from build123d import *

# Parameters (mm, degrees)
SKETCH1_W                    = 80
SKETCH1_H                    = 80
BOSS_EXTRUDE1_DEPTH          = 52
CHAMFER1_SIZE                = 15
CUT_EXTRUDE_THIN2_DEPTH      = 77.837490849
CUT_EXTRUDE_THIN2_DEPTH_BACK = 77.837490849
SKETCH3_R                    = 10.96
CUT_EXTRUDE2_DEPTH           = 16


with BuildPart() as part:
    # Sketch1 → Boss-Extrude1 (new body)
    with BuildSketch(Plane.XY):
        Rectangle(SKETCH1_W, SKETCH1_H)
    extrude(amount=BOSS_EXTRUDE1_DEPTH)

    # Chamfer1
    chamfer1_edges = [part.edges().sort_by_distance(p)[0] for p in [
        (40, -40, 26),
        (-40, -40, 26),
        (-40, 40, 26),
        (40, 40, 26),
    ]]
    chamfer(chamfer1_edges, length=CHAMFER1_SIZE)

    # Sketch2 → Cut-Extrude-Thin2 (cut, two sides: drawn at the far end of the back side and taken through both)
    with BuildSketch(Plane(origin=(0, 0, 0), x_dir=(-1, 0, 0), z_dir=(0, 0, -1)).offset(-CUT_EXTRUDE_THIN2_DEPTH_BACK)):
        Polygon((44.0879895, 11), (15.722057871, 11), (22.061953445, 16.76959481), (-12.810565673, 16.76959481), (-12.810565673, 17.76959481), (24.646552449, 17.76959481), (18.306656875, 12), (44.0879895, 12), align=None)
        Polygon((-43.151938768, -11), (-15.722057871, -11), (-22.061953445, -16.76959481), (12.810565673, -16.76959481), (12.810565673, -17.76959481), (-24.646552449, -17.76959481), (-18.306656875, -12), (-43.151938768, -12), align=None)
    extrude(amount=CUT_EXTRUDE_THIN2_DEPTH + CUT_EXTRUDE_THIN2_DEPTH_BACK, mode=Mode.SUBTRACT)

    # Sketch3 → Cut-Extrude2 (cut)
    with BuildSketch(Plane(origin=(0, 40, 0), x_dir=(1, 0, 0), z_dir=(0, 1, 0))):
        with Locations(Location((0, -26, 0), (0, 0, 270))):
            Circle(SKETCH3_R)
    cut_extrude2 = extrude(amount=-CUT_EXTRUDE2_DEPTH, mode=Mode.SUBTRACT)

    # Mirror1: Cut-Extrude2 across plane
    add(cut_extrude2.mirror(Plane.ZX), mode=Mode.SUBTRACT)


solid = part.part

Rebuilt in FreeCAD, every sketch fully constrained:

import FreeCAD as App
import Part
import Sketcher


def edges_at(feature, points):
    """Names of the edges that pass closest to the given points."""
    edges = feature.Shape.Edges
    near = lambda p: min(range(len(edges)), key=lambda i: edges[i].distToShape(Part.Vertex(*p))[0])
    return sorted({f"Edge{near(p) + 1}" for p in points})

doc = App.newDocument("Part")
body = doc.addObject("PartDesign::Body", "Body")

sketch1 = body.newObject("Sketcher::SketchObject", "Sketch")
sketch1.AttachmentSupport = (doc.getObject("XY_Plane"), [""])
sketch1.MapMode = "FlatFace"
sketch1.addGeometry([
    Part.LineSegment(App.Vector(-40, 40, 0), App.Vector(-40, -40, 0)),
    Part.LineSegment(App.Vector(-40, -40, 0), App.Vector(40, -40, 0)),
    Part.LineSegment(App.Vector(40, -40, 0), App.Vector(40, 40, 0)),
    Part.LineSegment(App.Vector(40, 40, 0), App.Vector(-40, 40, 0)),
], False)
sketch1.addConstraint([
    Sketcher.Constraint("Coincident", 0, 2, 1, 1),
    Sketcher.Constraint("Coincident", 1, 2, 2, 1),
    Sketcher.Constraint("Coincident", 2, 2, 3, 1),
    Sketcher.Constraint("Coincident", 3, 2, 0, 1),
    Sketcher.Constraint("Vertical", 0),
    Sketcher.Constraint("Horizontal", 1),
    Sketcher.Constraint("Vertical", 2),
    Sketcher.Constraint("Horizontal", 3),
    Sketcher.Constraint("Symmetric", 0, 2, 2, 2, -1, 1),
    Sketcher.Constraint("Equal", 3, 0),
    Sketcher.Constraint("DistanceX", 1, 1, 1, 2, 80.0),
])
pad1 = body.newObject("PartDesign::Pad", "Pad")
pad1.Profile = sketch1
pad1.Length = 52
doc.recompute()

chamfer = body.newObject("PartDesign::Chamfer", "Chamfer")
chamfer.Base = (pad1, edges_at(pad1, [
    (40, -40, 26),
    (-40, -40, 26),
    (-40, 40, 26),
    (40, 40, 26),
]))
chamfer.Size = 15

sketch2 = body.newObject("Sketcher::SketchObject", "Sketch001")
sketch2.AttachmentSupport = (doc.getObject("XY_Plane"), [""])
sketch2.MapMode = "FlatFace"
sketch2.addGeometry([
    Part.LineSegment(App.Vector(-15.7, 11, 0), App.Vector(-44.1, 11, 0)),
    Part.LineSegment(App.Vector(-44.1, 11, 0), App.Vector(-44.1, 12, 0)),
    Part.LineSegment(App.Vector(-44.1, 12, 0), App.Vector(-18.3, 12, 0)),
    Part.LineSegment(App.Vector(-18.3, 12, 0), App.Vector(-24.6, 17.8, 0)),
    Part.LineSegment(App.Vector(-24.6, 17.8, 0), App.Vector(12.8, 17.8, 0)),
    Part.LineSegment(App.Vector(12.8, 17.8, 0), App.Vector(12.8, 16.8, 0)),
    Part.LineSegment(App.Vector(12.8, 16.8, 0), App.Vector(-22.1, 16.8, 0)),
    Part.LineSegment(App.Vector(-22.1, 16.8, 0), App.Vector(-15.7, 11, 0)),
    Part.LineSegment(App.Vector(15.7, -11, 0), App.Vector(43.2, -11, 0)),
    Part.LineSegment(App.Vector(43.2, -11, 0), App.Vector(43.2, -12, 0)),
    Part.LineSegment(App.Vector(43.2, -12, 0), App.Vector(18.3, -12, 0)),
    Part.LineSegment(App.Vector(18.3, -12, 0), App.Vector(24.6, -17.8, 0)),
    Part.LineSegment(App.Vector(24.6, -17.8, 0), App.Vector(-12.8, -17.8, 0)),
    Part.LineSegment(App.Vector(-12.8, -17.8, 0), App.Vector(-12.8, -16.8, 0)),
    Part.LineSegment(App.Vector(-12.8, -16.8, 0), App.Vector(22.1, -16.8, 0)),
    Part.LineSegment(App.Vector(22.1, -16.8, 0), App.Vector(15.7, -11, 0)),
], False)
sketch2.addConstraint([
    Sketcher.Constraint("Coincident", 0, 2, 1, 1),
    Sketcher.Constraint("Coincident", 1, 2, 2, 1),
    Sketcher.Constraint("Coincident", 2, 2, 3, 1),
    Sketcher.Constraint("Coincident", 3, 2, 4, 1),
    Sketcher.Constraint("Coincident", 4, 2, 5, 1),
    Sketcher.Constraint("Coincident", 5, 2, 6, 1),
    Sketcher.Constraint("Coincident", 6, 2, 7, 1),
    Sketcher.Constraint("Coincident", 7, 2, 0, 1),
    Sketcher.Constraint("Coincident", 8, 2, 9, 1),
    Sketcher.Constraint("Coincident", 9, 2, 10, 1),
    Sketcher.Constraint("Coincident", 10, 2, 11, 1),
    Sketcher.Constraint("Coincident", 11, 2, 12, 1),
    Sketcher.Constraint("Coincident", 12, 2, 13, 1),
    Sketcher.Constraint("Coincident", 13, 2, 14, 1),
    Sketcher.Constraint("Coincident", 14, 2, 15, 1),
    Sketcher.Constraint("Coincident", 15, 2, 8, 1),
    Sketcher.Constraint("Horizontal", 0),
    Sketcher.Constraint("Vertical", 1),
    Sketcher.Constraint("Horizontal", 2),
    Sketcher.Constraint("Horizontal", 4),
    Sketcher.Constraint("Vertical", 5),
    Sketcher.Constraint("Horizontal", 6),
    Sketcher.Constraint("Horizontal", 8),
    Sketcher.Constraint("Vertical", 9),
    Sketcher.Constraint("Horizontal", 10),
    Sketcher.Constraint("Horizontal", 12),
    Sketcher.Constraint("Vertical", 13),
    Sketcher.Constraint("Horizontal", 14),
    Sketcher.Constraint("Symmetric", 2, 2, 10, 2, -1, 1),
    Sketcher.Constraint("Symmetric", 3, 2, 11, 2, -1, 1),
    Sketcher.Constraint("Symmetric", 5, 2, 13, 2, -1, 1),
    Sketcher.Constraint("Symmetric", 7, 2, 15, 2, -1, 1),
    Sketcher.Constraint("Parallel", 3, 7),
    Sketcher.Constraint("Parallel", 11, 15),
    Sketcher.Constraint("Equal", 1, 5),
    Sketcher.Constraint("DistanceY", 1, 1, 1, 2, 1.0),
    Sketcher.Constraint("DistanceY", -1, 1, 0, 2, 11.0),
    Sketcher.Constraint("DistanceX", 0, 2, 0, 1, 28.365932),
    Sketcher.Constraint("DistanceX", 4, 1, 4, 2, 37.457118),
    Sketcher.Constraint("DistanceX", 6, 2, 6, 1, 34.872519),
    Sketcher.Constraint("DistanceX", 8, 1, 8, 2, 27.429881),
    Sketcher.Constraint("DistanceX", 0, 2, -1, 1, 44.087989),
    Sketcher.Constraint("DistanceX", 5, 2, 10, 2, 5.496091),
    Sketcher.Constraint("DistanceY", 11, 2, 5, 2, 34.53919),
])
pocket1 = body.newObject("PartDesign::Pocket", "Pocket")
pocket1.Profile = sketch2
pocket1.Type = "ThroughAll"
pocket1.Midplane = True

sketch3 = body.newObject("Sketcher::SketchObject", "Sketch002")
sketch3.AttachmentSupport = (doc.getObject("XZ_Plane"), [""])
sketch3.MapMode = "FlatFace"
sketch3.AttachmentOffset = App.Placement(App.Vector(0, 0, -40), App.Rotation())
sketch3.addGeometry(Part.Circle(App.Vector(0, 26, 0), App.Vector(0, 0, 1), 11), False)
sketch3.addConstraint([
    Sketcher.Constraint("PointOnObject", 0, 3, -2),
    Sketcher.Constraint("Diameter", 0, 21.92),
    Sketcher.Constraint("DistanceY", -1, 1, 0, 3, 26.0),
])
pocket2 = body.newObject("PartDesign::Pocket", "Pocket001")
pocket2.Profile = sketch3
pocket2.Length = 16
pocket2.Reversed = True
doc.recompute()

mirrored = body.newObject("PartDesign::Mirrored", "Mirrored")
mirrored.Originals = [pocket2]
mirrored.MirrorPlane = (doc.getObject("XZ_Plane"), [""])
body.Tip = mirrored

doc.recompute()
